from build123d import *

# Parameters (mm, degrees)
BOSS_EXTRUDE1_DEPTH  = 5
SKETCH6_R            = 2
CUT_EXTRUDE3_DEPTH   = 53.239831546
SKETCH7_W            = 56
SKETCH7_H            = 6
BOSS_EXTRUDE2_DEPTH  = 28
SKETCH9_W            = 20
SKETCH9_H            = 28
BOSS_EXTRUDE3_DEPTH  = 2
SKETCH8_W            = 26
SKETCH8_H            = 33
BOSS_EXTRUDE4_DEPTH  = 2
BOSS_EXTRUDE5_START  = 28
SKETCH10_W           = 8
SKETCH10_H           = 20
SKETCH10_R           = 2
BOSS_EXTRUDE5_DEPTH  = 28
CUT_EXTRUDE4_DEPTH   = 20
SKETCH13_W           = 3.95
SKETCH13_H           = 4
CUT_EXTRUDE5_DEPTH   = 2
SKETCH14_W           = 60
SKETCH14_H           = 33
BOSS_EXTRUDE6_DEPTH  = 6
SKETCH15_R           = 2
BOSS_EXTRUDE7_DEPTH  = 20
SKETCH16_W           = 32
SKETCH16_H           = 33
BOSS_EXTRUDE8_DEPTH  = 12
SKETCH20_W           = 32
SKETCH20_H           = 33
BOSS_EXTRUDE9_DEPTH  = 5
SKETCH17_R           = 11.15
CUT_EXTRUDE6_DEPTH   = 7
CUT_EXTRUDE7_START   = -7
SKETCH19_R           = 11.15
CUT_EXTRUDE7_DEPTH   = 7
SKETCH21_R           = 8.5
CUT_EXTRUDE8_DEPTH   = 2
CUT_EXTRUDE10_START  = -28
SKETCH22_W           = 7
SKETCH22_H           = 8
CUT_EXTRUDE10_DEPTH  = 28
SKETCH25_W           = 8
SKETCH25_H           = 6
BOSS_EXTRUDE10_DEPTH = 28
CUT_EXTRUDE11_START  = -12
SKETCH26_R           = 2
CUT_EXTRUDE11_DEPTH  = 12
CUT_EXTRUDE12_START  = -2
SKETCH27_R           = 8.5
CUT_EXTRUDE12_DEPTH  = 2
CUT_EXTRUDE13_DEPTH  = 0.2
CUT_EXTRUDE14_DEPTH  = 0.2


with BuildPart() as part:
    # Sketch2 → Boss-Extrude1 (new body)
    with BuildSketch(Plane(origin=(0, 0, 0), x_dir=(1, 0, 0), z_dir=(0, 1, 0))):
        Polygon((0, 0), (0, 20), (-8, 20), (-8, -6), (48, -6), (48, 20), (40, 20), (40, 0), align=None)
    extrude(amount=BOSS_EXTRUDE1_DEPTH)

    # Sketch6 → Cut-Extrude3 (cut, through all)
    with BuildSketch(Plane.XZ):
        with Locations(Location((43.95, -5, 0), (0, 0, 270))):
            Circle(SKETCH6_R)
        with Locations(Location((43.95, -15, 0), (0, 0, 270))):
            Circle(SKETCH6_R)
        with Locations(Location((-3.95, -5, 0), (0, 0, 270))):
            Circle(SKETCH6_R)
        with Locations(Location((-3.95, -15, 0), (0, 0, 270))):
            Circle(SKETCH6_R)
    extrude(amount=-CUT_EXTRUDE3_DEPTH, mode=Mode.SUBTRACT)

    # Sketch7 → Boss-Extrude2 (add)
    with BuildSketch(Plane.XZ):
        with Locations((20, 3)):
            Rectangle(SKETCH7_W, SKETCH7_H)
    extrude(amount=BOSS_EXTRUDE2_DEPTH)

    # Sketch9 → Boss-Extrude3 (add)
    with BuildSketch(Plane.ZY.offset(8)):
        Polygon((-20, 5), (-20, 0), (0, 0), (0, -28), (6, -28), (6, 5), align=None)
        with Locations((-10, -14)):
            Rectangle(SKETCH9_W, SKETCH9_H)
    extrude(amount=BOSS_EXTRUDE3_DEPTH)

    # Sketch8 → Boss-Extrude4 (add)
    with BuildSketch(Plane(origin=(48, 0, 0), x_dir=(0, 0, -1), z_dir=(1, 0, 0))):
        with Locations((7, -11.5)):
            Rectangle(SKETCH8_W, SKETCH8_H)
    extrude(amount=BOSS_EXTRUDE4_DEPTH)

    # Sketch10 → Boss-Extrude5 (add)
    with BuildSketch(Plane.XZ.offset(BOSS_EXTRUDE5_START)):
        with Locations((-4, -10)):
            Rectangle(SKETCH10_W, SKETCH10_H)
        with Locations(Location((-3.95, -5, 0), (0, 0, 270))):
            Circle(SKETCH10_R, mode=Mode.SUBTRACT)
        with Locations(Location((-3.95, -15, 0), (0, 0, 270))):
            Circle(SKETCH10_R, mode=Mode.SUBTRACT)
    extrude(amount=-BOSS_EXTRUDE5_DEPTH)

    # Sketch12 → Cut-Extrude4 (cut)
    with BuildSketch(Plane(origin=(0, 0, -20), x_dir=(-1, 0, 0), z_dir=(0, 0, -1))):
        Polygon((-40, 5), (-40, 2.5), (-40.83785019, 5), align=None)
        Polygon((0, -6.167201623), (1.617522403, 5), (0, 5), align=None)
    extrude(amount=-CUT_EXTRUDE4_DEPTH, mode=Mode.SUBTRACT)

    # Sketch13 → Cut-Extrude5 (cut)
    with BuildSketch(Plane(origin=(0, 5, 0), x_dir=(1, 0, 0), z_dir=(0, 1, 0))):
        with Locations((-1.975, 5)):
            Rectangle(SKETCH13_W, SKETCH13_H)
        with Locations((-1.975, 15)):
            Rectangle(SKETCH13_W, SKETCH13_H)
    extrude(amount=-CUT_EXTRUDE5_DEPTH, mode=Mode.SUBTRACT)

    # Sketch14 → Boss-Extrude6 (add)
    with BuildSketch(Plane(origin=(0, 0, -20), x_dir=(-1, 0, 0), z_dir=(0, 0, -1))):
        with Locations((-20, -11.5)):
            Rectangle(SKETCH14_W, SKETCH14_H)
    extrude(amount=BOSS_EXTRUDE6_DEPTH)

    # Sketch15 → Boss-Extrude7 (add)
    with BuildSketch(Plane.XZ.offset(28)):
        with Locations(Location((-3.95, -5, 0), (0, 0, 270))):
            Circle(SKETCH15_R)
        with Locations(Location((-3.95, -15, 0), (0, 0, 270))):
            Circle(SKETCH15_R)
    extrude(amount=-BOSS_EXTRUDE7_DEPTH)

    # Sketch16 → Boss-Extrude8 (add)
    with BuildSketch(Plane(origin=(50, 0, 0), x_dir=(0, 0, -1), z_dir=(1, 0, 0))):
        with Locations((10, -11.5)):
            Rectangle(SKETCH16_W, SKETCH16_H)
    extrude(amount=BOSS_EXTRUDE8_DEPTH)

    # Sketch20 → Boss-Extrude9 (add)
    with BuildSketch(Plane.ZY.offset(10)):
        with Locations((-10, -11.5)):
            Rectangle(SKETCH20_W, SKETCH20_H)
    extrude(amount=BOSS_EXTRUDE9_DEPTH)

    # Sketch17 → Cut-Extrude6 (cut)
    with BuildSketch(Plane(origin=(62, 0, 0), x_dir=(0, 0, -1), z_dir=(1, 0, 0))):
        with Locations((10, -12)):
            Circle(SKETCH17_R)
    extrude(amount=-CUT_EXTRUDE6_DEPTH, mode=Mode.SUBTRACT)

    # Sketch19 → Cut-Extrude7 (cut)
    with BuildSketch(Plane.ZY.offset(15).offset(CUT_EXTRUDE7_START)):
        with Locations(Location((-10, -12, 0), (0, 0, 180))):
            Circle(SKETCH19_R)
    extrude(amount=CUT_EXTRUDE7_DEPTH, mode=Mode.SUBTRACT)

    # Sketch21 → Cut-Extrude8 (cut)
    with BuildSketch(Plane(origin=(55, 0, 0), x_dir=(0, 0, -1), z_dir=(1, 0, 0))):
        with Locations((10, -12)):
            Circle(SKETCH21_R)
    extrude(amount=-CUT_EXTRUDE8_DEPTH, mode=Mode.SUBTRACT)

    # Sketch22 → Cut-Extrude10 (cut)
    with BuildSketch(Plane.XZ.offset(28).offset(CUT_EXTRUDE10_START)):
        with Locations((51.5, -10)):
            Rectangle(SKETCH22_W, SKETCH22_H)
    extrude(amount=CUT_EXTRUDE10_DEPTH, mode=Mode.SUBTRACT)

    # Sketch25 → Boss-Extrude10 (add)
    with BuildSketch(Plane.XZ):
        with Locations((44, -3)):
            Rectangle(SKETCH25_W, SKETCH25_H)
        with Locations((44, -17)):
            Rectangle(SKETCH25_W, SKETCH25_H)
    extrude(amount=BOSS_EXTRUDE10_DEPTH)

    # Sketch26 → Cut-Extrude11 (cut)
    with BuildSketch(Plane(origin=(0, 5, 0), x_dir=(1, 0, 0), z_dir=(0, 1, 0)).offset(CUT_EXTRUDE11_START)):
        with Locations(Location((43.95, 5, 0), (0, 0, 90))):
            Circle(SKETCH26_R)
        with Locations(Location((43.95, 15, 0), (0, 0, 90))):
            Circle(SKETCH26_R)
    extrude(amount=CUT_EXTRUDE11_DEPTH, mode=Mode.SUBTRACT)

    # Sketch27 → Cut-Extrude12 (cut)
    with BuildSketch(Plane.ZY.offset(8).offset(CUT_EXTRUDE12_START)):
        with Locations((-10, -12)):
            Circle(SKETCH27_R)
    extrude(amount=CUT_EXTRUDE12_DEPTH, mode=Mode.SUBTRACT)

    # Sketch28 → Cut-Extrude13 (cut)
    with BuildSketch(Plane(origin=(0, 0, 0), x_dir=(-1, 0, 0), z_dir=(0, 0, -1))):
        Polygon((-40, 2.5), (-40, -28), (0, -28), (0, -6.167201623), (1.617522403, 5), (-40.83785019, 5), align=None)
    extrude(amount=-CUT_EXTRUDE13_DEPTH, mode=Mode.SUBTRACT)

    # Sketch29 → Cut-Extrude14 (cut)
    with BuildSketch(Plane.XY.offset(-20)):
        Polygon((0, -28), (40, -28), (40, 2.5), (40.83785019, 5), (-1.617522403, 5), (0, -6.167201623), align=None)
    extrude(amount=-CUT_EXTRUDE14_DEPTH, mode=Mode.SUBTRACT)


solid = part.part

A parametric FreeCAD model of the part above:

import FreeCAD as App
import Part
import Sketcher
Q = App.Units.Quantity


def add_polygon(sketch, points):
    """Adds a closed chain of lines whose ends are joined by coincident constraints."""
    first, n = sketch.GeometryCount, len(points)
    for a, b in zip(points, points[1:] + points[:1]):
        sketch.addGeometry(Part.LineSegment(App.Vector(*a, 0), App.Vector(*b, 0)), False)
    for i in range(n):
        sketch.addConstraint(Sketcher.Constraint("Coincident", first + i, 2, first + (i + 1) % n, 1))

doc = App.newDocument("Part")
body = doc.addObject("PartDesign::Body", "Body")

sketch1 = body.newObject("Sketcher::SketchObject", "Sketch")
sketch1.AttachmentSupport = (doc.getObject("XZ_Plane"), [""])
sketch1.MapMode = "FlatFace"
add_polygon(sketch1, [(0, 0), (0, -20), (-8, -20), (-8, 6), (48, 6), (48, -20), (40, -20), (40, 0)])
sketch1.addConstraint(Sketcher.Constraint("Vertical", 0))
sketch1.addConstraint(Sketcher.Constraint("Horizontal", 1))
sketch1.addConstraint(Sketcher.Constraint("Vertical", 2))
sketch1.addConstraint(Sketcher.Constraint("Horizontal", 3))
sketch1.addConstraint(Sketcher.Constraint("Vertical", 4))
sketch1.addConstraint(Sketcher.Constraint("Horizontal", 5))
sketch1.addConstraint(Sketcher.Constraint("Vertical", 6))
sketch1.addConstraint(Sketcher.Constraint("Horizontal", 7))
sketch1.addConstraint(Sketcher.Constraint("Coincident", 7, 2, -1, 1))
sketch1.addConstraint(Sketcher.Constraint("Horizontal", 1, 2, 4, 2))
sketch1.addConstraint(Sketcher.Constraint("Equal", 1, 5))
sketch1.addConstraint(Sketcher.Constraint("DistanceX", 1, 2, 1, 1, Q("8 mm")))
sketch1.addConstraint(Sketcher.Constraint("DistanceX", 3, 1, 3, 2, Q("56 mm")))
sketch1.addConstraint(Sketcher.Constraint("DistanceY", 0, 2, 0, 1, Q("20 mm")))
sketch1.addConstraint(Sketcher.Constraint("DistanceY", 2, 1, 2, 2, Q("26 mm")))
pad1 = body.newObject("PartDesign::Pad", "Pad")
pad1.Profile = sketch1
pad1.Length = 5
pad1.Reversed = True

sketch2 = body.newObject("Sketcher::SketchObject", "Sketch001")
sketch2.AttachmentSupport = (doc.getObject("XZ_Plane"), [""])
sketch2.MapMode = "FlatFace"
sketch2.addGeometry(Part.Circle(App.Vector(44, -5, 0), App.Vector(0, 0, 1), 2), False)
sketch2.addGeometry(Part.Circle(App.Vector(44, -15, 0), App.Vector(0, 0, 1), 2), False)
sketch2.addGeometry(Part.Circle(App.Vector(-4, -5, 0), App.Vector(0, 0, 1), 2), False)
sketch2.addGeometry(Part.Circle(App.Vector(-4, -15, 0), App.Vector(0, 0, 1), 2), False)
sketch2.addConstraint(Sketcher.Constraint("Equal", 0, 1))
sketch2.addConstraint(Sketcher.Constraint("Equal", 1, 2))
sketch2.addConstraint(Sketcher.Constraint("Equal", 2, 3))
sketch2.addConstraint(Sketcher.Constraint("Horizontal", 0, 3, 2, 3))
sketch2.addConstraint(Sketcher.Constraint("Horizontal", 1, 3, 3, 3))
sketch2.addConstraint(Sketcher.Constraint("Vertical", 0, 3, 1, 3))
sketch2.addConstraint(Sketcher.Constraint("Vertical", 2, 3, 3, 3))
sketch2.addConstraint(Sketcher.Constraint("Diameter", 0, Q("4 mm")))
sketch2.addConstraint(Sketcher.Constraint("DistanceY", 0, 3, -1, 1, Q("5 mm")))
sketch2.addConstraint(Sketcher.Constraint("DistanceY", 1, 3, -1, 1, Q("15 mm")))
sketch2.addConstraint(Sketcher.Constraint("DistanceX", 2, 3, 0, 3, Q("47.9 mm")))
sketch2.addConstraint(Sketcher.Constraint("DistanceX", -1, 1, 0, 3, Q("43.95 mm")))
pocket1 = body.newObject("PartDesign::Pocket", "Pocket")
pocket1.Profile = sketch2
pocket1.Type = "ThroughAll"

sketch3 = body.newObject("Sketcher::SketchObject", "Sketch002")
sketch3.AttachmentSupport = (doc.getObject("XZ_Plane"), [""])
sketch3.MapMode = "FlatFace"
add_polygon(sketch3, [(-8, 6), (-8, 0), (48, 0), (48, 6)])
sketch3.addConstraint(Sketcher.Constraint("Vertical", 0))
sketch3.addConstraint(Sketcher.Constraint("Horizontal", 1))
sketch3.addConstraint(Sketcher.Constraint("Vertical", 2))
sketch3.addConstraint(Sketcher.Constraint("Horizontal", 3))
sketch3.addConstraint(Sketcher.Constraint("PointOnObject", 0, 2, -1))
sketch3.addConstraint(Sketcher.Constraint("DistanceX", 1, 1, 1, 2, Q("56 mm")))
sketch3.addConstraint(Sketcher.Constraint("DistanceY", 0, 2, 0, 1, Q("6 mm")))
sketch3.addConstraint(Sketcher.Constraint("DistanceX", 0, 2, -1, 1, Q("8 mm")))
pad2 = body.newObject("PartDesign::Pad", "Pad001")
pad2.Profile = sketch3
pad2.Length = 28

sketch4 = body.newObject("Sketcher::SketchObject", "Sketch003")
sketch4.AttachmentSupport = (doc.getObject("YZ_Plane"), [""])
sketch4.MapMode = "FlatFace"
sketch4.AttachmentOffset = App.Placement(App.Vector(0, 0, -8), App.Rotation())
add_polygon(sketch4, [(5, -20), (-28, -20), (-28, 6), (5, 6)])
sketch4.addConstraint(Sketcher.Constraint("Horizontal", 0))
sketch4.addConstraint(Sketcher.Constraint("Vertical", 1))
sketch4.addConstraint(Sketcher.Constraint("Horizontal", 2))
sketch4.addConstraint(Sketcher.Constraint("Vertical", 3))
sketch4.addConstraint(Sketcher.Constraint("DistanceX", 0, 2, 0, 1, Q("33 mm")))
sketch4.addConstraint(Sketcher.Constraint("DistanceY", 1, 1, 1, 2, Q("26 mm")))
sketch4.addConstraint(Sketcher.Constraint("DistanceX", 0, 2, -1, 1, Q("28 mm")))
sketch4.addConstraint(Sketcher.Constraint("DistanceY", 0, 2, -1, 1, Q("20 mm")))
pad3 = body.newObject("PartDesign::Pad", "Pad002")
pad3.Profile = sketch4
pad3.Length = 2
pad3.Reversed = True

sketch5 = body.newObject("Sketcher::SketchObject", "Sketch004")
sketch5.AttachmentSupport = (doc.getObject("YZ_Plane"), [""])
sketch5.MapMode = "FlatFace"
sketch5.AttachmentOffset = App.Placement(App.Vector(0, 0, 48), App.Rotation())
add_polygon(sketch5, [(5, 6), (-28, 6), (-28, -20), (5, -20)])
sketch5.addConstraint(Sketcher.Constraint("Horizontal", 0))
sketch5.addConstraint(Sketcher.Constraint("Vertical", 1))
sketch5.addConstraint(Sketcher.Constraint("Horizontal", 2))
sketch5.addConstraint(Sketcher.Constraint("Vertical", 3))
sketch5.addConstraint(Sketcher.Constraint("DistanceX", 0, 2, 0, 1, Q("33 mm")))
sketch5.addConstraint(Sketcher.Constraint("DistanceY", 1, 2, 1, 1, Q("26 mm")))
sketch5.addConstraint(Sketcher.Constraint("DistanceX", 0, 2, -1, 1, Q("28 mm")))
sketch5.addConstraint(Sketcher.Constraint("DistanceY", -1, 1, 0, 2, Q("6 mm")))
pad4 = body.newObject("PartDesign::Pad", "Pad003")
pad4.Profile = sketch5
pad4.Length = 2

sketch6 = body.newObject("Sketcher::SketchObject", "Sketch005")
sketch6.AttachmentSupport = (doc.getObject("XZ_Plane"), [""])
sketch6.MapMode = "FlatFace"
sketch6.AttachmentOffset = App.Placement(App.Vector(0, 0, 28), App.Rotation())
add_polygon(sketch6, [(-8, 0), (-8, -20), (0, -20), (0, 0)])
sketch6.addGeometry(Part.Circle(App.Vector(-4, -15, 0), App.Vector(0, 0, 1), 2), False)
sketch6.addGeometry(Part.Circle(App.Vector(-4, -5, 0), App.Vector(0, 0, 1), 2), False)
sketch6.addConstraint(Sketcher.Constraint("Vertical", 0))
sketch6.addConstraint(Sketcher.Constraint("Horizontal", 1))
sketch6.addConstraint(Sketcher.Constraint("Vertical", 2))
sketch6.addConstraint(Sketcher.Constraint("Horizontal", 3))
sketch6.addConstraint(Sketcher.Constraint("Coincident", 2, 2, -1, 1))
sketch6.addConstraint(Sketcher.Constraint("Equal", 4, 5))
sketch6.addConstraint(Sketcher.Constraint("Vertical", 4, 3, 5, 3))
sketch6.addConstraint(Sketcher.Constraint("Diameter", 4, Q("4 mm")))
sketch6.addConstraint(Sketcher.Constraint("DistanceX", 1, 1, 1, 2, Q("8 mm")))
sketch6.addConstraint(Sketcher.Constraint("DistanceY", 0, 2, 0, 1, Q("20 mm")))
sketch6.addConstraint(Sketcher.Constraint("DistanceY", 4, 3, -1, 1, Q("15 mm")))
sketch6.addConstraint(Sketcher.Constraint("DistanceY", 5, 3, -1, 1, Q("5 mm")))
sketch6.addConstraint(Sketcher.Constraint("DistanceX", 4, 3, -1, 1, Q("3.95 mm")))
pad5 = body.newObject("PartDesign::Pad", "Pad004")
pad5.Profile = sketch6
pad5.Length = 28
pad5.Reversed = True

sketch7 = body.newObject("Sketcher::SketchObject", "Sketch006")
sketch7.AttachmentSupport = (doc.getObject("XY_Plane"), [""])
sketch7.MapMode = "FlatFace"
sketch7.AttachmentOffset = App.Placement(App.Vector(0, 0, -20), App.Rotation())
add_polygon(sketch7, [(40, 2.5), (40, 5), (40.8, 5)])
add_polygon(sketch7, [(0, -6.2), (-1.6, 5), (0, 5)])
sketch7.addConstraint(Sketcher.Constraint("Vertical", 0))
sketch7.addConstraint(Sketcher.Constraint("Horizontal", 1))
sketch7.addConstraint(Sketcher.Constraint("Horizontal", 4))
sketch7.addConstraint(Sketcher.Constraint("Vertical", 5))
sketch7.addConstraint(Sketcher.Constraint("PointOnObject", 4, 2, -2))
sketch7.addConstraint(Sketcher.Constraint("Horizontal", 1, 2, 3, 2))
sketch7.addConstraint(Sketcher.Constraint("DistanceY", 0, 1, 0, 2, Q("2.5 mm")))
sketch7.addConstraint(Sketcher.Constraint("DistanceX", -1, 1, 0, 2, Q("40 mm")))
sketch7.addConstraint(Sketcher.Constraint("DistanceY", -1, 1, 0, 2, Q("5 mm")))
sketch7.addConstraint(Sketcher.Constraint("DistanceY", 5, 2, 5, 1, Q("11.167202 mm")))
sketch7.addConstraint(Sketcher.Constraint("DistanceX", 1, 1, 1, 2, Q("0.83785 mm")))
sketch7.addConstraint(Sketcher.Constraint("Distance", 3, Q("11.283739 mm")))
pocket2 = body.newObject("PartDesign::Pocket", "Pocket001")
pocket2.Profile = sketch7
pocket2.Length = 20
pocket2.Reversed = True

sketch8 = body.newObject("Sketcher::SketchObject", "Sketch007")
sketch8.AttachmentSupport = (doc.getObject("XZ_Plane"), [""])
sketch8.MapMode = "FlatFace"
sketch8.AttachmentOffset = App.Placement(App.Vector(0, 0, -5), App.Rotation())
add_polygon(sketch8, [(-4, -7), (-4, -3), (0, -3), (0, -7)])
add_polygon(sketch8, [(-4, -17), (-4, -13), (0, -13), (0, -17)])
sketch8.addConstraint(Sketcher.Constraint("Vertical", 0))
sketch8.addConstraint(Sketcher.Constraint("Horizontal", 1))
sketch8.addConstraint(Sketcher.Constraint("Vertical", 2))
sketch8.addConstraint(Sketcher.Constraint("Horizontal", 3))
sketch8.addConstraint(Sketcher.Constraint("Vertical", 4))
sketch8.addConstraint(Sketcher.Constraint("Horizontal", 5))
sketch8.addConstraint(Sketcher.Constraint("Vertical", 6))
sketch8.addConstraint(Sketcher.Constraint("Horizontal", 7))
sketch8.addConstraint(Sketcher.Constraint("PointOnObject", 1, 2, -2))
sketch8.addConstraint(Sketcher.Constraint("PointOnObject", 5, 2, -2))
sketch8.addConstraint(Sketcher.Constraint("Vertical", 3, 2, 4, 2))
sketch8.addConstraint(Sketcher.Constraint("Equal", 2, 4))
sketch8.addConstraint(Sketcher.Constraint("DistanceY", 0, 1, 0, 2, Q("4 mm")))
sketch8.addConstraint(Sketcher.Constraint("DistanceY", 0, 2, -1, 1, Q("3 mm")))
sketch8.addConstraint(Sketcher.Constraint("DistanceY", 4, 2, -1, 1, Q("13 mm")))
sketch8.addConstraint(Sketcher.Constraint("DistanceX", 1, 1, 1, 2, Q("3.95 mm")))
pocket3 = body.newObject("PartDesign::Pocket", "Pocket002")
pocket3.Profile = sketch8
pocket3.Length = 2
pocket3.Reversed = True

sketch9 = body.newObject("Sketcher::SketchObject", "Sketch008")
sketch9.AttachmentSupport = (doc.getObject("XY_Plane"), [""])
sketch9.MapMode = "FlatFace"
sketch9.AttachmentOffset = App.Placement(App.Vector(0, 0, -20), App.Rotation())
add_polygon(sketch9, [(50, 5), (50, -28), (-10, -28), (-10, 5)])
sketch9.addConstraint(Sketcher.Constraint("Vertical", 0))
sketch9.addConstraint(Sketcher.Constraint("Horizontal", 1))
sketch9.addConstraint(Sketcher.Constraint("Vertical", 2))
sketch9.addConstraint(Sketcher.Constraint("Horizontal", 3))
sketch9.addConstraint(Sketcher.Constraint("DistanceX", 1, 2, 1, 1, Q("60 mm")))
sketch9.addConstraint(Sketcher.Constraint("DistanceY", 0, 2, 0, 1, Q("33 mm")))
sketch9.addConstraint(Sketcher.Constraint("DistanceX", -1, 1, 0, 2, Q("50 mm")))
sketch9.addConstraint(Sketcher.Constraint("DistanceY", 0, 2, -1, 1, Q("28 mm")))
pad6 = body.newObject("PartDesign::Pad", "Pad005")
pad6.Profile = sketch9
pad6.Length = 6
pad6.Reversed = True

sketch10 = body.newObject("Sketcher::SketchObject", "Sketch009")
sketch10.AttachmentSupport = (doc.getObject("XZ_Plane"), [""])
sketch10.MapMode = "FlatFace"
sketch10.AttachmentOffset = App.Placement(App.Vector(0, 0, 28), App.Rotation())
sketch10.addGeometry(Part.Circle(App.Vector(-4, -5, 0), App.Vector(0, 0, 1), 2), False)
sketch10.addGeometry(Part.Circle(App.Vector(-4, -15, 0), App.Vector(0, 0, 1), 2), False)
sketch10.addConstraint(Sketcher.Constraint("Equal", 0, 1))
sketch10.addConstraint(Sketcher.Constraint("Vertical", 0, 3, 1, 3))
sketch10.addConstraint(Sketcher.Constraint("Diameter", 0, Q("4 mm")))
sketch10.addConstraint(Sketcher.Constraint("DistanceY", 0, 3, -1, 1, Q("5 mm")))
sketch10.addConstraint(Sketcher.Constraint("DistanceY", 1, 3, -1, 1, Q("15 mm")))
sketch10.addConstraint(Sketcher.Constraint("DistanceX", 0, 3, -1, 1, Q("3.95 mm")))
pad7 = body.newObject("PartDesign::Pad", "Pad006")
pad7.Profile = sketch10
pad7.Length = 20
pad7.Reversed = True

sketch11 = body.newObject("Sketcher::SketchObject", "Sketch010")
sketch11.AttachmentSupport = (doc.getObject("YZ_Plane"), [""])
sketch11.MapMode = "FlatFace"
sketch11.AttachmentOffset = App.Placement(App.Vector(0, 0, 50), App.Rotation())
add_polygon(sketch11, [(5, 6), (-28, 6), (-28, -26), (5, -26)])
sketch11.addConstraint(Sketcher.Constraint("Horizontal", 0))
sketch11.addConstraint(Sketcher.Constraint("Vertical", 1))
sketch11.addConstraint(Sketcher.Constraint("Horizontal", 2))
sketch11.addConstraint(Sketcher.Constraint("Vertical", 3))
sketch11.addConstraint(Sketcher.Constraint("DistanceX", 0, 2, 0, 1, Q("33 mm")))
sketch11.addConstraint(Sketcher.Constraint("DistanceY", 1, 2, 1, 1, Q("32 mm")))
sketch11.addConstraint(Sketcher.Constraint("DistanceX", 0, 2, -1, 1, Q("28 mm")))
sketch11.addConstraint(Sketcher.Constraint("DistanceY", -1, 1, 0, 2, Q("6 mm")))
pad8 = body.newObject("PartDesign::Pad", "Pad007")
pad8.Profile = sketch11
pad8.Length = 12

sketch12 = body.newObject("Sketcher::SketchObject", "Sketch011")
sketch12.AttachmentSupport = (doc.getObject("YZ_Plane"), [""])
sketch12.MapMode = "FlatFace"
sketch12.AttachmentOffset = App.Placement(App.Vector(0, 0, -10), App.Rotation())
add_polygon(sketch12, [(5, -26), (-28, -26), (-28, 6), (5, 6)])
sketch12.addConstraint(Sketcher.Constraint("Horizontal", 0))
sketch12.addConstraint(Sketcher.Constraint("Vertical", 1))
sketch12.addConstraint(Sketcher.Constraint("Horizontal", 2))
sketch12.addConstraint(Sketcher.Constraint("Vertical", 3))
sketch12.addConstraint(Sketcher.Constraint("DistanceX", 0, 2, 0, 1, Q("33 mm")))
sketch12.addConstraint(Sketcher.Constraint("DistanceY", 1, 1, 1, 2, Q("32 mm")))
sketch12.addConstraint(Sketcher.Constraint("DistanceX", 0, 2, -1, 1, Q("28 mm")))
sketch12.addConstraint(Sketcher.Constraint("DistanceY", 0, 2, -1, 1, Q("26 mm")))
pad9 = body.newObject("PartDesign::Pad", "Pad008")
pad9.Profile = sketch12
pad9.Length = 5
pad9.Reversed = True

sketch13 = body.newObject("Sketcher::SketchObject", "Sketch012")
sketch13.AttachmentSupport = (doc.getObject("YZ_Plane"), [""])
sketch13.MapMode = "FlatFace"
sketch13.AttachmentOffset = App.Placement(App.Vector(0, 0, 62), App.Rotation())
sketch13.addGeometry(Part.Circle(App.Vector(-12, -10, 0), App.Vector(0, 0, 1), 11), False)
sketch13.addConstraint(Sketcher.Constraint("Diameter", 0, Q("22.3 mm")))
sketch13.addConstraint(Sketcher.Constraint("DistanceX", 0, 3, -1, 1, Q("12 mm")))
sketch13.addConstraint(Sketcher.Constraint("DistanceY", 0, 3, -1, 1, Q("10 mm")))
pocket4 = body.newObject("PartDesign::Pocket", "Pocket003")
pocket4.Profile = sketch13
pocket4.Length = 7

sketch14 = body.newObject("Sketcher::SketchObject", "Sketch013")
sketch14.AttachmentSupport = (doc.getObject("YZ_Plane"), [""])
sketch14.MapMode = "FlatFace"
sketch14.AttachmentOffset = App.Placement(App.Vector(0, 0, -8), App.Rotation())
sketch14.addGeometry(Part.Circle(App.Vector(-12, -10, 0), App.Vector(0, 0, 1), 11), False)
sketch14.addConstraint(Sketcher.Constraint("Diameter", 0, Q("22.3 mm")))
sketch14.addConstraint(Sketcher.Constraint("DistanceX", 0, 3, -1, 1, Q("12 mm")))
sketch14.addConstraint(Sketcher.Constraint("DistanceY", 0, 3, -1, 1, Q("10 mm")))
pocket5 = body.newObject("PartDesign::Pocket", "Pocket004")
pocket5.Profile = sketch14
pocket5.Length = 7

sketch15 = body.newObject("Sketcher::SketchObject", "Sketch014")
sketch15.AttachmentSupport = (doc.getObject("YZ_Plane"), [""])
sketch15.MapMode = "FlatFace"
sketch15.AttachmentOffset = App.Placement(App.Vector(0, 0, 55), App.Rotation())
sketch15.addGeometry(Part.Circle(App.Vector(-12, -10, 0), App.Vector(0, 0, 1), 8), False)
sketch15.addConstraint(Sketcher.Constraint("Diameter", 0, Q("17 mm")))
sketch15.addConstraint(Sketcher.Constraint("DistanceX", 0, 3, -1, 1, Q("12 mm")))
sketch15.addConstraint(Sketcher.Constraint("DistanceY", 0, 3, -1, 1, Q("10 mm")))
pocket6 = body.newObject("PartDesign::Pocket", "Pocket005")
pocket6.Profile = sketch15
pocket6.Length = 2

sketch16 = body.newObject("Sketcher::SketchObject", "Sketch015")
sketch16.AttachmentSupport = (doc.getObject("XZ_Plane"), [""])
sketch16.MapMode = "FlatFace"
add_polygon(sketch16, [(48, -6), (48, -14), (55, -14), (55, -6)])
sketch16.addConstraint(Sketcher.Constraint("Vertical", 0))
sketch16.addConstraint(Sketcher.Constraint("Horizontal", 1))
sketch16.addConstraint(Sketcher.Constraint("Vertical", 2))
sketch16.addConstraint(Sketcher.Constraint("Horizontal", 3))
sketch16.addConstraint(Sketcher.Constraint("DistanceX", 1, 1, 1, 2, Q("7 mm")))
sketch16.addConstraint(Sketcher.Constraint("DistanceY", 0, 2, 0, 1, Q("8 mm")))
sketch16.addConstraint(Sketcher.Constraint("DistanceX", -1, 1, 0, 2, Q("48 mm")))
sketch16.addConstraint(Sketcher.Constraint("DistanceY", 0, 2, -1, 1, Q("14 mm")))
pocket7 = body.newObject("PartDesign::Pocket", "Pocket006")
pocket7.Profile = sketch16
pocket7.Length = 28
pocket7.Reversed = True

sketch17 = body.newObject("Sketcher::SketchObject", "Sketch016")
sketch17.AttachmentSupport = (doc.getObject("XZ_Plane"), [""])
sketch17.MapMode = "FlatFace"
add_polygon(sketch17, [(40, 0), (40, -6), (48, -6), (48, 0)])
add_polygon(sketch17, [(40, -14), (40, -20), (48, -20), (48, -14)])
sketch17.addConstraint(Sketcher.Constraint("Vertical", 0))
sketch17.addConstraint(Sketcher.Constraint("Horizontal", 1))
sketch17.addConstraint(Sketcher.Constraint("Vertical", 2))
sketch17.addConstraint(Sketcher.Constraint("Horizontal", 3))
sketch17.addConstraint(Sketcher.Constraint("Vertical", 4))
sketch17.addConstraint(Sketcher.Constraint("Horizontal", 5))
sketch17.addConstraint(Sketcher.Constraint("Vertical", 6))
sketch17.addConstraint(Sketcher.Constraint("Horizontal", 7))
sketch17.addConstraint(Sketcher.Constraint("PointOnObject", 2, 2, -1))
sketch17.addConstraint(Sketcher.Constraint("Vertical", 3, 2, 4, 2))
sketch17.addConstraint(Sketcher.Constraint("Vertical", 2, 2, 5, 2))
sketch17.addConstraint(Sketcher.Constraint("Equal", 2, 4))
sketch17.addConstraint(Sketcher.Constraint("DistanceX", 1, 1, 1, 2, Q("8 mm")))
sketch17.addConstraint(Sketcher.Constraint("DistanceY", 0, 2, 0, 1, Q("6 mm")))
sketch17.addConstraint(Sketcher.Constraint("DistanceX", -1, 1, 0, 2, Q("40 mm")))
sketch17.addConstraint(Sketcher.Constraint("DistanceY", 4, 2, -1, 1, Q("20 mm")))
pad10 = body.newObject("PartDesign::Pad", "Pad009")
pad10.Profile = sketch17
pad10.Length = 28

sketch18 = body.newObject("Sketcher::SketchObject", "Sketch017")
sketch18.AttachmentSupport = (doc.getObject("XZ_Plane"), [""])
sketch18.MapMode = "FlatFace"
sketch18.AttachmentOffset = App.Placement(App.Vector(0, 0, 7), App.Rotation())
sketch18.addGeometry(Part.Circle(App.Vector(44, -5, 0), App.Vector(0, 0, 1), 2), False)
sketch18.addGeometry(Part.Circle(App.Vector(44, -15, 0), App.Vector(0, 0, 1), 2), False)
sketch18.addConstraint(Sketcher.Constraint("Equal", 0, 1))
sketch18.addConstraint(Sketcher.Constraint("Vertical", 0, 3, 1, 3))
sketch18.addConstraint(Sketcher.Constraint("Diameter", 0, Q("4 mm")))
sketch18.addConstraint(Sketcher.Constraint("DistanceY", 0, 3, -1, 1, Q("5 mm")))
sketch18.addConstraint(Sketcher.Constraint("DistanceY", 1, 3, -1, 1, Q("15 mm")))
sketch18.addConstraint(Sketcher.Constraint("DistanceX", -1, 1, 0, 3, Q("43.95 mm")))
pocket8 = body.newObject("PartDesign::Pocket", "Pocket007")
pocket8.Profile = sketch18
pocket8.Length = 12

sketch19 = body.newObject("Sketcher::SketchObject", "Sketch018")
sketch19.AttachmentSupport = (doc.getObject("YZ_Plane"), [""])
sketch19.MapMode = "FlatFace"
sketch19.AttachmentOffset = App.Placement(App.Vector(0, 0, -6), App.Rotation())
sketch19.addGeometry(Part.Circle(App.Vector(-12, -10, 0), App.Vector(0, 0, 1), 8), False)
sketch19.addConstraint(Sketcher.Constraint("Diameter", 0, Q("17 mm")))
sketch19.addConstraint(Sketcher.Constraint("DistanceX", 0, 3, -1, 1, Q("12 mm")))
sketch19.addConstraint(Sketcher.Constraint("DistanceY", 0, 3, -1, 1, Q("10 mm")))
pocket9 = body.newObject("PartDesign::Pocket", "Pocket008")
pocket9.Profile = sketch19
pocket9.Length = 2

sketch20 = body.newObject("Sketcher::SketchObject", "Sketch019")
sketch20.AttachmentSupport = (doc.getObject("XY_Plane"), [""])
sketch20.MapMode = "FlatFace"
add_polygon(sketch20, [(40, 2.5), (40, -28), (0, -28), (0, -6.2), (-1.6, 5), (40.8, 5)])
sketch20.addConstraint(Sketcher.Constraint("Vertical", 0))
sketch20.addConstraint(Sketcher.Constraint("Horizontal", 1))
sketch20.addConstraint(Sketcher.Constraint("Vertical", 2))
sketch20.addConstraint(Sketcher.Constraint("Horizontal", 4))
sketch20.addConstraint(Sketcher.Constraint("PointOnObject", 1, 2, -2))
sketch20.addConstraint(Sketcher.Constraint("DistanceX", 1, 2, 1, 1, Q("40 mm")))
sketch20.addConstraint(Sketcher.Constraint("DistanceY", 0, 2, 0, 1, Q("30.5 mm")))
sketch20.addConstraint(Sketcher.Constraint("DistanceY", 0, 2, -1, 1, Q("28 mm")))
sketch20.addConstraint(Sketcher.Constraint("DistanceY", -1, 1, 3, 2, Q("5 mm")))
sketch20.addConstraint(Sketcher.Constraint("DistanceY", 2, 1, 2, 2, Q("21.832798 mm")))
sketch20.addConstraint(Sketcher.Constraint("Distance", 3, Q("11.283739 mm")))
sketch20.addConstraint(Sketcher.Constraint("DistanceX", 4, 1, 4, 2, Q("42.455373 mm")))
pocket10 = body.newObject("PartDesign::Pocket", "Pocket009")
pocket10.Profile = sketch20
pocket10.Length = 0.2
pocket10.Reversed = True

sketch21 = body.newObject("Sketcher::SketchObject", "Sketch020")
sketch21.AttachmentSupport = (doc.getObject("XY_Plane"), [""])
sketch21.MapMode = "FlatFace"
sketch21.AttachmentOffset = App.Placement(App.Vector(0, 0, -20), App.Rotation())
add_polygon(sketch21, [(0, -28), (40, -28), (40, 2.5), (40.8, 5), (-1.6, 5), (0, -6.2)])
sketch21.addConstraint(Sketcher.Constraint("Horizontal", 0))
sketch21.addConstraint(Sketcher.Constraint("Vertical", 1))
sketch21.addConstraint(Sketcher.Constraint("Horizontal", 3))
sketch21.addConstraint(Sketcher.Constraint("Vertical", 5))
sketch21.addConstraint(Sketcher.Constraint("PointOnObject", 4, 2, -2))
sketch21.addConstraint(Sketcher.Constraint("DistanceX", 0, 1, 0, 2, Q("40 mm")))
sketch21.addConstraint(Sketcher.Constraint("DistanceY", 1, 1, 1, 2, Q("30.5 mm")))
sketch21.addConstraint(Sketcher.Constraint("DistanceY", 0, 2, -1, 1, Q("28 mm")))
sketch21.addConstraint(Sketcher.Constraint("DistanceY", -1, 1, 2, 2, Q("5 mm")))
sketch21.addConstraint(Sketcher.Constraint("DistanceY", 5, 2, 5, 1, Q("21.832798 mm")))
sketch21.addConstraint(Sketcher.Constraint("Distance", 4, Q("11.283739 mm")))
sketch21.addConstraint(Sketcher.Constraint("DistanceX", 3, 2, 3, 1, Q("42.455373 mm")))
pocket11 = body.newObject("PartDesign::Pocket", "Pocket010")
pocket11.Profile = sketch21
pocket11.Length = 0.2

doc.recompute()
